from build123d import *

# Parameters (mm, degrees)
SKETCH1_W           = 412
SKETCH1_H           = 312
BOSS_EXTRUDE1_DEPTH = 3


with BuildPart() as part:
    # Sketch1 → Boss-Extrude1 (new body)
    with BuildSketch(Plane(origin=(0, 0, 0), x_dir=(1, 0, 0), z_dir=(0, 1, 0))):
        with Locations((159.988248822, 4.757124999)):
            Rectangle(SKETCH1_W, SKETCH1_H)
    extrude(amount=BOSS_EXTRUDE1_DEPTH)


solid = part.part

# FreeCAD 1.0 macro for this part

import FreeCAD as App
import Part
import Sketcher
Q = App.Units.Quantity


def add_polygon(sketch, points):
    """Adds a closed chain of lines whose ends are joined by coincident constraints."""
    first, n = sketch.GeometryCount, len(points)
    for a, b in zip(points, points[1:] + points[:1]):
        sketch.addGeometry(Part.LineSegment(App.Vector(*a, 0), App.Vector(*b, 0)), False)
    for i in range(n):
        sketch.addConstraint(Sketcher.Constraint("Coincident", first + i, 2, first + (i + 1) % n, 1))

doc = App.newDocument("Part")
body = doc.addObject("PartDesign::Body", "Body")

# Sketch on XZ plane
sketch1 = body.newObject("Sketcher::SketchObject", "Sketch")
sketch1.AttachmentSupport = (doc.getObject("XZ_Plane"), [""])
sketch1.MapMode = "FlatFace"
add_polygon(sketch1, [(-46.011751, -160.757125), (-46.011751, 151.242875), (365.988249, 151.242875), (365.988249, -160.757125)])  # lines 0-3
sketch1.addConstraint([
    Sketcher.Constraint("Vertical", 0),
    Sketcher.Constraint("Horizontal", 1),
    Sketcher.Constraint("Vertical", 2),
    Sketcher.Constraint("Horizontal", 3),
    Sketcher.Constraint("DistanceX", 1, 1, 1, 2, Q("412 mm")),
    Sketcher.Constraint("DistanceY", 0, 1, 0, 2, Q("312 mm")),
    Sketcher.Constraint("DistanceX", 0, 2, -1, 1, Q("46.011751 mm")),
    Sketcher.Constraint("DistanceY", -1, 1, 0, 2, Q("151.242875 mm")),
])
pad1 = body.newObject("PartDesign::Pad", "Pad")
pad1.Profile = sketch1
pad1.Length = 3
pad1.Reversed = True

doc.recompute()
